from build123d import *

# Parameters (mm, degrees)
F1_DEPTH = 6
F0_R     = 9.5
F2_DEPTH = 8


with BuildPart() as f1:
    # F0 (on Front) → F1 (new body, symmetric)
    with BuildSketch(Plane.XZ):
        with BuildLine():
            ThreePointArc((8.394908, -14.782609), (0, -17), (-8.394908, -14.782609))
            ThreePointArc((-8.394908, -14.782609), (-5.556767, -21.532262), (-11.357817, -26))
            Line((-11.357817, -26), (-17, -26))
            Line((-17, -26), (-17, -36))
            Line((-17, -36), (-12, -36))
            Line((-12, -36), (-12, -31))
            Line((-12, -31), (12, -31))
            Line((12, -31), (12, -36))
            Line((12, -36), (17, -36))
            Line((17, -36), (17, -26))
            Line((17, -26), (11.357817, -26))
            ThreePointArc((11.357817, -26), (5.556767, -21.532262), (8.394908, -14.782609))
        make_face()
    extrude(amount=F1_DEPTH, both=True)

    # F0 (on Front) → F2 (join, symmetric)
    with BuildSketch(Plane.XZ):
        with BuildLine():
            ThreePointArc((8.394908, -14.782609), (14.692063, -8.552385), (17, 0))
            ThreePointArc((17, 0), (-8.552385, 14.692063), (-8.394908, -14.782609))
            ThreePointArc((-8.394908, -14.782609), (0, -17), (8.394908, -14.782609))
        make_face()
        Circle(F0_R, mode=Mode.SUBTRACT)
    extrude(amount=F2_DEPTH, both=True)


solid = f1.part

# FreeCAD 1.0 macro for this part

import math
import FreeCAD as App
import Part
import Sketcher
Q = App.Units.Quantity

doc = App.newDocument("Part")
body = doc.addObject("PartDesign::Body", "Body")

# Sketch on XZ plane
sketch1 = body.newObject("Sketcher::SketchObject", "Sketch")
sketch1.AttachmentSupport = (doc.getObject("XZ_Plane"), [""])
sketch1.MapMode = "FlatFace"
sketch1.addGeometry([
    Part.ArcOfCircle(Part.Circle(App.Vector(0, 0, 0), App.Vector(0, 0, 1), 17), math.radians(-120), math.radians(-60)),  # 0
    Part.ArcOfCircle(Part.Circle(App.Vector(-11, -20, 0), App.Vector(0, 0, 1), 6), math.radians(-90), math.radians(60)),  # 1
    Part.LineSegment(App.Vector(-11, -26, 0), App.Vector(-17, -26, 0)),  # 2
    Part.LineSegment(App.Vector(-17, -26, 0), App.Vector(-17, -36, 0)),  # 3
    Part.LineSegment(App.Vector(-17, -36, 0), App.Vector(-12, -36, 0)),  # 4
    Part.LineSegment(App.Vector(-12, -36, 0), App.Vector(-12, -31, 0)),  # 5
    Part.LineSegment(App.Vector(-12, -31, 0), App.Vector(12, -31, 0)),  # 6
    Part.LineSegment(App.Vector(12, -31, 0), App.Vector(12, -36, 0)),  # 7
    Part.LineSegment(App.Vector(12, -36, 0), App.Vector(17, -36, 0)),  # 8
    Part.LineSegment(App.Vector(17, -36, 0), App.Vector(17, -26, 0)),  # 9
    Part.LineSegment(App.Vector(17, -26, 0), App.Vector(11, -26, 0)),  # 10
    Part.ArcOfCircle(Part.Circle(App.Vector(11, -20, 0), App.Vector(0, 0, 1), 6), math.radians(120), math.radians(270)),  # 11
], False)
sketch1.addConstraint([
    Sketcher.Constraint("Tangent", 0, 1, 1, 2),
    Sketcher.Constraint("Tangent", 1, 1, 2, 1),
    Sketcher.Constraint("Coincident", 2, 2, 3, 1),
    Sketcher.Constraint("Coincident", 3, 2, 4, 1),
    Sketcher.Constraint("Coincident", 4, 2, 5, 1),
    Sketcher.Constraint("Coincident", 5, 2, 6, 1),
    Sketcher.Constraint("Coincident", 6, 2, 7, 1),
    Sketcher.Constraint("Coincident", 7, 2, 8, 1),
    Sketcher.Constraint("Coincident", 8, 2, 9, 1),
    Sketcher.Constraint("Coincident", 9, 2, 10, 1),
    Sketcher.Constraint("Tangent", 10, 2, 11, 2),
    Sketcher.Constraint("Tangent", 11, 1, 0, 2),
    Sketcher.Constraint("Horizontal", 2),
    Sketcher.Constraint("Vertical", 3),
    Sketcher.Constraint("Horizontal", 4),
    Sketcher.Constraint("Vertical", 5),
    Sketcher.Constraint("Horizontal", 6),
    Sketcher.Constraint("Vertical", 7),
    Sketcher.Constraint("Horizontal", 8),
    Sketcher.Constraint("Vertical", 9),
    Sketcher.Constraint("Horizontal", 10),
    Sketcher.Constraint("Coincident", 0, 3, -1, 1),
    Sketcher.Constraint("Equal", 1, 11),
    Sketcher.Constraint("Symmetric", 4, 2, 7, 2, -2),
    Sketcher.Constraint("Symmetric", 2, 2, 9, 2, -2),
    Sketcher.Constraint("Equal", 8, 5),
    Sketcher.Constraint("Radius", 1, Q("6 mm")),
    Sketcher.Constraint("DistanceX", 4, 1, 4, 2, Q("5 mm")),
    Sketcher.Constraint("DistanceX", 6, 1, 6, 2, Q("24 mm")),
    Sketcher.Constraint("DistanceY", 3, 2, 3, 1, Q("10 mm")),
    Sketcher.Constraint("DistanceY", 1, 3, -1, 1, Q("20 mm")),
    Sketcher.Constraint("Radius", 0, Q("17.000002 mm")),
])
pad1 = body.newObject("PartDesign::Pad", "Pad")
pad1.Profile = sketch1
pad1.Length = 12
pad1.Midplane = True

# Sketch on XZ plane
sketch2 = body.newObject("Sketcher::SketchObject", "Sketch001")
sketch2.AttachmentSupport = (doc.getObject("XZ_Plane"), [""])
sketch2.MapMode = "FlatFace"
sketch2.addGeometry([
    Part.ArcOfCircle(Part.Circle(App.Vector(0, 0, 0), App.Vector(0, 0, 1), 17), math.radians(-60), math.radians(0)),
    Part.ArcOfCircle(Part.Circle(App.Vector(0, 0, 0), App.Vector(0, 0, 1), 17), math.radians(0), math.radians(240)),
    Part.ArcOfCircle(Part.Circle(App.Vector(0, 0, 0), App.Vector(0, 0, 1), 17), math.radians(-120), math.radians(-60)),
    Part.Circle(App.Vector(0, 0, 0), App.Vector(0, 0, 1), 10),
], False)
sketch2.addConstraint([
    Sketcher.Constraint("Tangent", 0, 2, 1, 1),
    Sketcher.Constraint("Tangent", 1, 2, 2, 1),
    Sketcher.Constraint("Tangent", 2, 2, 0, 1),
    Sketcher.Constraint("Coincident", 0, 3, -1, 1),
    Sketcher.Constraint("Coincident", 3, 3, -1, 1),
    Sketcher.Constraint("PointOnObject", 0, 2, -1),
    Sketcher.Constraint("Horizontal", 1, 2, 2, 2),
    Sketcher.Constraint("Diameter", 3, Q("19 mm")),
    Sketcher.Constraint("Radius", 0, Q("17 mm")),
    Sketcher.Constraint("DistanceX", 1, 2, -1, 1, Q("8.394908 mm")),
])
pad2 = body.newObject("PartDesign::Pad", "Pad001")
pad2.Profile = sketch2
pad2.Length = 16
pad2.Midplane = True

doc.recompute()
